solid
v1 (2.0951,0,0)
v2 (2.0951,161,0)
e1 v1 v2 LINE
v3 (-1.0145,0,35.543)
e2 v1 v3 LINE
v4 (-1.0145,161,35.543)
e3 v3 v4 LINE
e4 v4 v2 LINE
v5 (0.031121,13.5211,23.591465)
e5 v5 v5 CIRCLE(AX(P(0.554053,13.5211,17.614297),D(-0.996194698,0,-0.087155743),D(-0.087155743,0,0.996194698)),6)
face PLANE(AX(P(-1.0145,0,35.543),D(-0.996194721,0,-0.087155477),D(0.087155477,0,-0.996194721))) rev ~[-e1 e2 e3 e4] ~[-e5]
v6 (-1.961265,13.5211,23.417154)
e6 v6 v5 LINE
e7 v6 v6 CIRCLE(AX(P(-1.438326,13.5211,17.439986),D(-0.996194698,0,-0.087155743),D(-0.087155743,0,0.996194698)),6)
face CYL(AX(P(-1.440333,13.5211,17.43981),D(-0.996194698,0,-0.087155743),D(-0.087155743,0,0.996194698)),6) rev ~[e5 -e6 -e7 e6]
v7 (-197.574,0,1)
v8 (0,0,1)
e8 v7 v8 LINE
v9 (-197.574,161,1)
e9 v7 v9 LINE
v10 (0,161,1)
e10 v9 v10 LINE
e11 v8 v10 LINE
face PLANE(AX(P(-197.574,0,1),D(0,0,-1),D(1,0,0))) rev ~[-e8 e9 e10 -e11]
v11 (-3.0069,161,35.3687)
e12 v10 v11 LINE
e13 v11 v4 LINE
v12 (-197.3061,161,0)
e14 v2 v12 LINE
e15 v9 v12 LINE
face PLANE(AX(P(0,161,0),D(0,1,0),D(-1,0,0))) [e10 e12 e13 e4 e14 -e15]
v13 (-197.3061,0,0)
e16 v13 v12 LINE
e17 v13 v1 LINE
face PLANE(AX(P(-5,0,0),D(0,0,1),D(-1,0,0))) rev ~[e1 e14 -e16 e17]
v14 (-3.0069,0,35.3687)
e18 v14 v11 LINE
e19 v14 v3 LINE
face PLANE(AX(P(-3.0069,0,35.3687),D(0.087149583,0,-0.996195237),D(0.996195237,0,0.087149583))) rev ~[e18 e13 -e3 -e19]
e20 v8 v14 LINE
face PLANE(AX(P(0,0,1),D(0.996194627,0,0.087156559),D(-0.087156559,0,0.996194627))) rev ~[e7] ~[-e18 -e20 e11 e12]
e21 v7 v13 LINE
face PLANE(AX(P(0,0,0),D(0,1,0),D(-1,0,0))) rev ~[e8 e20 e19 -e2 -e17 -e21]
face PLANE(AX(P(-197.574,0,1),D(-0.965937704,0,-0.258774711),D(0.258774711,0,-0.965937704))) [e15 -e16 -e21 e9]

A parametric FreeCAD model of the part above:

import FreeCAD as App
import Part
import Sketcher
Q = App.Units.Quantity

doc = App.newDocument("Part")
body = doc.addObject("PartDesign::Body", "Body")

# Sketch on XZ plane
sketch1 = body.newObject("Sketcher::SketchObject", "Sketch")
sketch1.AttachmentSupport = (doc.getObject("XZ_Plane"), [""])
sketch1.MapMode = "FlatFace"
sketch1.addGeometry([
    Part.LineSegment(App.Vector(-197.6, 1, 0), App.Vector(0, 1, 0)),  # 0
    Part.LineSegment(App.Vector(0, 1, 0), App.Vector(-3, 35.4, 0)),  # 1
    Part.LineSegment(App.Vector(-3, 35.4, 0), App.Vector(-1, 35.5, 0)),  # 2
    Part.LineSegment(App.Vector(-1, 35.5, 0), App.Vector(2.1, 0, 0)),  # 3
    Part.LineSegment(App.Vector(2.1, 0, 0), App.Vector(-197.3, 0, 0)),  # 4
    Part.LineSegment(App.Vector(-197.3, 0, 0), App.Vector(-197.6, 1, 0)),  # 5
], False)
sketch1.addConstraint([
    Sketcher.Constraint("Coincident", 0, 2, 1, 1),
    Sketcher.Constraint("Coincident", 1, 2, 2, 1),
    Sketcher.Constraint("Coincident", 2, 2, 3, 1),
    Sketcher.Constraint("Coincident", 3, 2, 4, 1),
    Sketcher.Constraint("Coincident", 4, 2, 5, 1),
    Sketcher.Constraint("Coincident", 5, 2, 0, 1),
    Sketcher.Constraint("Horizontal", 0),
    Sketcher.Constraint("Horizontal", 4),
    Sketcher.Constraint("PointOnObject", 0, 2, -2),
    Sketcher.Constraint("PointOnObject", 3, 2, -1),
    Sketcher.Constraint("Perpendicular", 1, 2),
    Sketcher.Constraint("Perpendicular", 2, 3),
    Sketcher.Constraint("Angle", 2, Q("4.9996 deg")),
    Sketcher.Constraint("Distance", 2, Q("2 mm")),
    Sketcher.Constraint("DistanceY", -1, 1, 0, 2, Q("1 mm")),
    Sketcher.Constraint("Distance", 1, Q("34.5 mm")),
    Sketcher.Constraint("DistanceX", 0, 1, 0, 2, Q("197.574 mm")),
    Sketcher.Constraint("DistanceX", 4, 2, 4, 1, Q("199.4012 mm")),
])
pad1 = body.newObject("PartDesign::Pad", "Pad")
pad1.Profile = sketch1
pad1.Length = 161
pad1.Reversed = True

# Sketch on an angled plane
sketch2 = body.newObject("Sketcher::SketchObject", "Sketch001")
sketch2.Placement = App.Placement(App.Vector(-3.0069, 0, 35.3687), App.Rotation(App.Vector(-0.087155743, 0, 0.996194698), App.Vector(0, 1, 0), App.Vector(-0.996194698, 0, -0.087155743), "ZXY"))
sketch2.addGeometry(Part.Circle(App.Vector(-18, 14, 0), App.Vector(0, 0, 1), 6), False)
sketch2.addConstraint([
    Sketcher.Constraint("Diameter", 0, Q("12 mm")),
    Sketcher.Constraint("DistanceY", -1, 1, 0, 3, Q("13.521 mm")),
    Sketcher.Constraint("DistanceX", 0, 3, -1, 1, Q("17.9972 mm")),
])
pocket1 = body.newObject("PartDesign::Pocket", "Pocket")
pocket1.Profile = sketch2
pocket1.Length = 58.2625

doc.recompute()
